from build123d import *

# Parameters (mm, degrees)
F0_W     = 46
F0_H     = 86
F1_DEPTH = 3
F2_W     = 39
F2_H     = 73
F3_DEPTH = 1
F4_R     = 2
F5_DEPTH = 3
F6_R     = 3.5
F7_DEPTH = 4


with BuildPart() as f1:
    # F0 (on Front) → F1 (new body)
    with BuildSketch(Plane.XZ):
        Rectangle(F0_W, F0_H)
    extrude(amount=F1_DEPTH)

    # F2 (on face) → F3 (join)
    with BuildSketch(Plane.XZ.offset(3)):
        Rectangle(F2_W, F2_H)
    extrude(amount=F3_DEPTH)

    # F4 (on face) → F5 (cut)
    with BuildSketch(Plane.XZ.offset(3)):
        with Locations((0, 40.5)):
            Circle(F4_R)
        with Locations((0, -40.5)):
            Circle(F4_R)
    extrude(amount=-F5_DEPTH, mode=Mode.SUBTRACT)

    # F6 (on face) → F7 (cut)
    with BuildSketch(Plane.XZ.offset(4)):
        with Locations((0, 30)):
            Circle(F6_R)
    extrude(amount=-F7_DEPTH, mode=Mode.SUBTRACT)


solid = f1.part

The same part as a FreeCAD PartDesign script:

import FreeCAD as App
import Part
import Sketcher

V = App.Vector
Q = App.Units.Quantity

doc = App.newDocument("Part")
body = doc.addObject("PartDesign::Body", "Body")

sketch1 = body.newObject("Sketcher::SketchObject", "Sketch")
sketch1.AttachmentSupport = (doc.getObject("XZ_Plane"), [""])
sketch1.MapMode = "FlatFace"
sketch1.addGeometry(Part.LineSegment(V(-23, 43, 0), V(-23, -43, 0)), False)
sketch1.addGeometry(Part.LineSegment(V(-23, -43, 0), V(23, -43, 0)), False)
sketch1.addGeometry(Part.LineSegment(V(23, -43, 0), V(23, 43, 0)), False)
sketch1.addGeometry(Part.LineSegment(V(23, 43, 0), V(-23, 43, 0)), False)
sketch1.addConstraint(Sketcher.Constraint("Coincident", 0, 2, 1, 1))
sketch1.addConstraint(Sketcher.Constraint("Coincident", 1, 2, 2, 1))
sketch1.addConstraint(Sketcher.Constraint("Coincident", 2, 2, 3, 1))
sketch1.addConstraint(Sketcher.Constraint("Coincident", 3, 2, 0, 1))
sketch1.addConstraint(Sketcher.Constraint("Vertical", 0))
sketch1.addConstraint(Sketcher.Constraint("Horizontal", 1))
sketch1.addConstraint(Sketcher.Constraint("Vertical", 2))
sketch1.addConstraint(Sketcher.Constraint("Horizontal", 3))
sketch1.addConstraint(Sketcher.Constraint("Symmetric", 0, 2, 2, 2, -1, 1))
sketch1.addConstraint(Sketcher.Constraint("DistanceX", 1, 1, 1, 2, Q("46 mm")))
sketch1.addConstraint(Sketcher.Constraint("DistanceY", 0, 2, 0, 1, Q("86 mm")))
pad1 = body.newObject("PartDesign::Pad", "Pad")
pad1.Profile = sketch1
pad1.Length = 3

sketch2 = body.newObject("Sketcher::SketchObject", "Sketch001")
sketch2.AttachmentSupport = (doc.getObject("XZ_Plane"), [""])
sketch2.MapMode = "FlatFace"
sketch2.AttachmentOffset = App.Placement(V(0, 0, 3), App.Rotation())
sketch2.addGeometry(Part.LineSegment(V(-19.5, 36.5, 0), V(-19.5, -36.5, 0)), False)
sketch2.addGeometry(Part.LineSegment(V(-19.5, -36.5, 0), V(19.5, -36.5, 0)), False)
sketch2.addGeometry(Part.LineSegment(V(19.5, -36.5, 0), V(19.5, 36.5, 0)), False)
sketch2.addGeometry(Part.LineSegment(V(19.5, 36.5, 0), V(-19.5, 36.5, 0)), False)
sketch2.addConstraint(Sketcher.Constraint("Coincident", 0, 2, 1, 1))
sketch2.addConstraint(Sketcher.Constraint("Coincident", 1, 2, 2, 1))
sketch2.addConstraint(Sketcher.Constraint("Coincident", 2, 2, 3, 1))
sketch2.addConstraint(Sketcher.Constraint("Coincident", 3, 2, 0, 1))
sketch2.addConstraint(Sketcher.Constraint("Vertical", 0))
sketch2.addConstraint(Sketcher.Constraint("Horizontal", 1))
sketch2.addConstraint(Sketcher.Constraint("Vertical", 2))
sketch2.addConstraint(Sketcher.Constraint("Horizontal", 3))
sketch2.addConstraint(Sketcher.Constraint("Symmetric", 0, 2, 2, 2, -1, 1))
sketch2.addConstraint(Sketcher.Constraint("DistanceX", 1, 1, 1, 2, Q("39 mm")))
sketch2.addConstraint(Sketcher.Constraint("DistanceY", 0, 2, 0, 1, Q("73 mm")))
pad2 = body.newObject("PartDesign::Pad", "Pad001")
pad2.Profile = sketch2
pad2.Length = 1

sketch3 = body.newObject("Sketcher::SketchObject", "Sketch002")
sketch3.AttachmentSupport = (doc.getObject("XZ_Plane"), [""])
sketch3.MapMode = "FlatFace"
sketch3.AttachmentOffset = App.Placement(V(0, 0, 3), App.Rotation())
sketch3.addGeometry(Part.Circle(V(0, 40.5, 0), V(0, 0, 1), 2), False)
sketch3.addGeometry(Part.Circle(V(0, -40.5, 0), V(0, 0, 1), 2), False)
sketch3.addConstraint(Sketcher.Constraint("Equal", 0, 1))
sketch3.addConstraint(Sketcher.Constraint("Symmetric", 0, 3, 1, 3, -1, 1))
sketch3.addConstraint(Sketcher.Constraint("PointOnObject", 0, 3, -2))
sketch3.addConstraint(Sketcher.Constraint("Diameter", 0, Q("4 mm")))
sketch3.addConstraint(Sketcher.Constraint("DistanceY", 1, 3, 0, 3, Q("81 mm")))
pocket1 = body.newObject("PartDesign::Pocket", "Pocket")
pocket1.Profile = sketch3
pocket1.Length = 3

sketch4 = body.newObject("Sketcher::SketchObject", "Sketch003")
sketch4.AttachmentSupport = (doc.getObject("XZ_Plane"), [""])
sketch4.MapMode = "FlatFace"
sketch4.AttachmentOffset = App.Placement(V(0, 0, 4), App.Rotation())
sketch4.addGeometry(Part.Circle(V(0, 30, 0), V(0, 0, 1), 3.5), False)
sketch4.addConstraint(Sketcher.Constraint("PointOnObject", 0, 3, -2))
sketch4.addConstraint(Sketcher.Constraint("Diameter", 0, Q("7 mm")))
sketch4.addConstraint(Sketcher.Constraint("DistanceY", -1, 1, 0, 3, Q("30 mm")))
pocket2 = body.newObject("PartDesign::Pocket", "Pocket001")
pocket2.Profile = sketch4
pocket2.Length = 4

doc.recompute()
